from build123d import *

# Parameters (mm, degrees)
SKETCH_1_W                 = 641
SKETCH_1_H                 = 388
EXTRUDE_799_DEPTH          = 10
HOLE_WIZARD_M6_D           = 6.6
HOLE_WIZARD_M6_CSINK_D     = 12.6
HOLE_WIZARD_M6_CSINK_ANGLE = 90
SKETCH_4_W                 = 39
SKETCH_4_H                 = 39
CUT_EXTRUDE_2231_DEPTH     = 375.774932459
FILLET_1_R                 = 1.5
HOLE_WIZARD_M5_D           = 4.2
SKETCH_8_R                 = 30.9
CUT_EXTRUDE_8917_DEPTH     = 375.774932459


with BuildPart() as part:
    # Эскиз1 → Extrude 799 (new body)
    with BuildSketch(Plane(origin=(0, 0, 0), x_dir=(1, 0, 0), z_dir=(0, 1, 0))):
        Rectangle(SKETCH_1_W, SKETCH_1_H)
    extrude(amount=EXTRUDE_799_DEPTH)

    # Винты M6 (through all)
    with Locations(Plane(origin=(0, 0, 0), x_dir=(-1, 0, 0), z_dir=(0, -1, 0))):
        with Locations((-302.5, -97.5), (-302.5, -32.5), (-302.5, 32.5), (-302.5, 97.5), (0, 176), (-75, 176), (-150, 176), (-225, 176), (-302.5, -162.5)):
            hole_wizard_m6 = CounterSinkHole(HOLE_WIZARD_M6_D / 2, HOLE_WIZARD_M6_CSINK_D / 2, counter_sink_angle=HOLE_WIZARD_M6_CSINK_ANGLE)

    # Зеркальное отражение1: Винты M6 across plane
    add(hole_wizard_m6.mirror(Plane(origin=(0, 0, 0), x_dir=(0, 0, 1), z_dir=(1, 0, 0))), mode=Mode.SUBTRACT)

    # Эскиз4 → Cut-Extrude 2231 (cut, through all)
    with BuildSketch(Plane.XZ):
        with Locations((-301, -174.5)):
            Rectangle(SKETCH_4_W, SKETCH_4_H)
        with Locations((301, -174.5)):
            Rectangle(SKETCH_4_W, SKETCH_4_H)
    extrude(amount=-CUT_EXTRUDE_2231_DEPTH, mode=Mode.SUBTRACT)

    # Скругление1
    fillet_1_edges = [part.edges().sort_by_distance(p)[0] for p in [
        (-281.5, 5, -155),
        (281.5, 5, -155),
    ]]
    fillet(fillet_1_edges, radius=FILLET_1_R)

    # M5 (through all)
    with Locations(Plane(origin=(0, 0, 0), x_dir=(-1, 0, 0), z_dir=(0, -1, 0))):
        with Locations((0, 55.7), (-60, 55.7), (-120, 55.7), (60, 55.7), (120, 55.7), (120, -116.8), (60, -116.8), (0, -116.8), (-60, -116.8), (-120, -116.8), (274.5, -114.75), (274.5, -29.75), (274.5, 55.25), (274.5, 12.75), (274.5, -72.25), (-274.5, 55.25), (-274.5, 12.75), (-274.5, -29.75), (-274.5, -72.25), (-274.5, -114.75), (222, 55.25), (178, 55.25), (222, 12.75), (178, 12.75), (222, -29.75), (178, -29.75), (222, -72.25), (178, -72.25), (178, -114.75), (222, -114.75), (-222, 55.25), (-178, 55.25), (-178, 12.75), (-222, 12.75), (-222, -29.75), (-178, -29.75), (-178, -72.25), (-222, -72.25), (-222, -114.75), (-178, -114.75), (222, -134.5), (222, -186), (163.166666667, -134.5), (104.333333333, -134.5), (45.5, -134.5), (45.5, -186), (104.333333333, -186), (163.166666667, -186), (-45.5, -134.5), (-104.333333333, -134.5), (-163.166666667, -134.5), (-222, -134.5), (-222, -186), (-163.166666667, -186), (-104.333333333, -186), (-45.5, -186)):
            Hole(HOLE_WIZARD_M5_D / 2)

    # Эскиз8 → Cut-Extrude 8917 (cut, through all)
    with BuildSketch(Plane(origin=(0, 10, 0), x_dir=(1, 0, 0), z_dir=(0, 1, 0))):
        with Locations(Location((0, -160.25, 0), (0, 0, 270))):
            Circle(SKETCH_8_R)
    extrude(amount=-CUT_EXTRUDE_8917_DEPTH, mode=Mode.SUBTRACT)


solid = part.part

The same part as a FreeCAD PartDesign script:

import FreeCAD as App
import Part
import Sketcher
Q = App.Units.Quantity


def edges_at(feature, points):
    """Names of the edges that pass closest to the given points."""
    edges = feature.Shape.Edges
    near = lambda p: min(range(len(edges)), key=lambda i: edges[i].distToShape(Part.Vertex(*p))[0])
    return sorted({f"Edge{near(p) + 1}" for p in points})

doc = App.newDocument("Part")
body = doc.addObject("PartDesign::Body", "Body")

# Sketch on XZ plane
sketch1 = body.newObject("Sketcher::SketchObject", "Sketch")
sketch1.AttachmentSupport = (doc.getObject("XZ_Plane"), [""])
sketch1.MapMode = "FlatFace"
sketch1.addGeometry([
    Part.LineSegment(App.Vector(-320, -194, 0), App.Vector(-320, 194, 0)),
    Part.LineSegment(App.Vector(-320, 194, 0), App.Vector(320, 194, 0)),
    Part.LineSegment(App.Vector(320, 194, 0), App.Vector(320, -194, 0)),
    Part.LineSegment(App.Vector(320, -194, 0), App.Vector(-320, -194, 0)),
], False)
sketch1.addConstraint([
    Sketcher.Constraint("Coincident", 0, 2, 1, 1),
    Sketcher.Constraint("Coincident", 1, 2, 2, 1),
    Sketcher.Constraint("Coincident", 2, 2, 3, 1),
    Sketcher.Constraint("Coincident", 3, 2, 0, 1),
    Sketcher.Constraint("Vertical", 0),
    Sketcher.Constraint("Horizontal", 1),
    Sketcher.Constraint("Vertical", 2),
    Sketcher.Constraint("Horizontal", 3),
    Sketcher.Constraint("Symmetric", 0, 2, 2, 2, -1, 1),
    Sketcher.Constraint("DistanceX", 1, 1, 1, 2, Q("641 mm")),
    Sketcher.Constraint("DistanceY", 0, 1, 0, 2, Q("388 mm")),
])
pad1 = body.newObject("PartDesign::Pad", "Pad")
pad1.Profile = sketch1
pad1.Length = 10
pad1.Reversed = True

# Sketch on XZ plane
sketch2 = body.newObject("Sketcher::SketchObject", "Sketch001")
sketch2.AttachmentSupport = (doc.getObject("XZ_Plane"), [""])
sketch2.MapMode = "FlatFace"
sketch2.addGeometry([
    Part.Circle(App.Vector(302.5, 97.5, 0), App.Vector(0, 0, 1), 3.3),  # 0
    Part.Circle(App.Vector(302.5, 32.5, 0), App.Vector(0, 0, 1), 3.3),  # 1
    Part.Circle(App.Vector(302.5, -32.5, 0), App.Vector(0, 0, 1), 3.3),  # 2
    Part.Circle(App.Vector(302.5, -97.5, 0), App.Vector(0, 0, 1), 3.3),  # 3
    Part.Circle(App.Vector(0, -176, 0), App.Vector(0, 0, 1), 3.3),  # 4
    Part.Circle(App.Vector(75, -176, 0), App.Vector(0, 0, 1), 3.3),  # 5
    Part.Circle(App.Vector(150, -176, 0), App.Vector(0, 0, 1), 3.3),  # 6
    Part.Circle(App.Vector(225, -176, 0), App.Vector(0, 0, 1), 3.3),  # 7
    Part.Circle(App.Vector(302.5, 162.5, 0), App.Vector(0, 0, 1), 3.3),  # 8
], False)
sketch2.addConstraint([
    Sketcher.Constraint("Equal", 0, 1),
    Sketcher.Constraint("Equal", 1, 2),
    Sketcher.Constraint("Equal", 2, 3),
    Sketcher.Constraint("Equal", 3, 4),
    Sketcher.Constraint("Equal", 4, 5),
    Sketcher.Constraint("Equal", 5, 6),
    Sketcher.Constraint("Equal", 6, 7),
    Sketcher.Constraint("Equal", 7, 8),
    Sketcher.Constraint("Symmetric", 1, 3, 2, 3, -1),
    Sketcher.Constraint("Symmetric", 0, 3, 3, 3, -1),
    Sketcher.Constraint("PointOnObject", 4, 3, -2),
    Sketcher.Constraint("Horizontal", 4, 3, 5, 3),
    Sketcher.Constraint("Horizontal", 5, 3, 6, 3),
    Sketcher.Constraint("Horizontal", 6, 3, 7, 3),
    Sketcher.Constraint("Vertical", 0, 3, 1, 3),
    Sketcher.Constraint("Vertical", 3, 3, 8, 3),
    Sketcher.Constraint("Diameter", 0, Q("6.6 mm")),
    Sketcher.Constraint("DistanceY", 4, 3, -1, 1, Q("176 mm")),
    Sketcher.Constraint("DistanceX", -1, 1, 5, 3, Q("75 mm")),
    Sketcher.Constraint("DistanceX", -1, 1, 6, 3, Q("150 mm")),
    Sketcher.Constraint("DistanceX", -1, 1, 7, 3, Q("225 mm")),
    Sketcher.Constraint("DistanceY", 1, 3, 0, 3, Q("65 mm")),
    Sketcher.Constraint("DistanceY", 2, 3, 1, 3, Q("65 mm")),
    Sketcher.Constraint("DistanceY", 0, 3, 8, 3, Q("65 mm")),
    Sketcher.Constraint("DistanceX", -1, 1, 0, 3, Q("302.5 mm")),
])
doc.recompute()
hole = body.newObject("PartDesign::Hole", "Hole")
hole.Profile = sketch2
hole.ThreadType = "None"
hole.Diameter = 6.6
hole.DepthType = "ThroughAll"
hole.HoleCutType = "Countersink"
hole.HoleCutDiameter = 12.6
hole.HoleCutCountersinkAngle = 90
doc.recompute()

mirrored = body.newObject("PartDesign::Mirrored", "Mirrored")
mirrored.Originals = [hole]
mirrored.MirrorPlane = (doc.getObject("YZ_Plane"), [""])
body.Tip = mirrored

# Sketch on XZ plane
sketch3 = body.newObject("Sketcher::SketchObject", "Sketch002")
sketch3.AttachmentSupport = (doc.getObject("XZ_Plane"), [""])
sketch3.MapMode = "FlatFace"
sketch3.addGeometry([
    Part.LineSegment(App.Vector(-320, -155, 0), App.Vector(-320, -194, 0)),  # 0
    Part.LineSegment(App.Vector(-320, -194, 0), App.Vector(-282, -194, 0)),  # 1
    Part.LineSegment(App.Vector(-282, -194, 0), App.Vector(-282, -155, 0)),  # 2
    Part.LineSegment(App.Vector(-282, -155, 0), App.Vector(-320, -155, 0)),  # 3
    Part.LineSegment(App.Vector(282, -155, 0), App.Vector(282, -194, 0)),  # 4
    Part.LineSegment(App.Vector(282, -194, 0), App.Vector(320, -194, 0)),  # 5
    Part.LineSegment(App.Vector(320, -194, 0), App.Vector(320, -155, 0)),  # 6
    Part.LineSegment(App.Vector(320, -155, 0), App.Vector(282, -155, 0)),  # 7
], False)
sketch3.addConstraint([
    Sketcher.Constraint("Coincident", 0, 2, 1, 1),
    Sketcher.Constraint("Coincident", 1, 2, 2, 1),
    Sketcher.Constraint("Coincident", 2, 2, 3, 1),
    Sketcher.Constraint("Coincident", 3, 2, 0, 1),
    Sketcher.Constraint("Coincident", 4, 2, 5, 1),
    Sketcher.Constraint("Coincident", 5, 2, 6, 1),
    Sketcher.Constraint("Coincident", 6, 2, 7, 1),
    Sketcher.Constraint("Coincident", 7, 2, 4, 1),
    Sketcher.Constraint("Vertical", 0),
    Sketcher.Constraint("Horizontal", 1),
    Sketcher.Constraint("Vertical", 2),
    Sketcher.Constraint("Horizontal", 3),
    Sketcher.Constraint("Vertical", 4),
    Sketcher.Constraint("Horizontal", 5),
    Sketcher.Constraint("Vertical", 6),
    Sketcher.Constraint("Horizontal", 7),
    Sketcher.Constraint("Symmetric", 1, 2, 4, 2, -2),
    Sketcher.Constraint("Symmetric", 3, 2, 6, 2, -2),
    Sketcher.Constraint("Equal", 7, 0),
    Sketcher.Constraint("DistanceX", 1, 1, 1, 2, Q("39 mm")),
    Sketcher.Constraint("DistanceY", 0, 2, -1, 1, Q("194 mm")),
    Sketcher.Constraint("DistanceX", 1, 2, 4, 2, Q("563 mm")),
])
pocket1 = body.newObject("PartDesign::Pocket", "Pocket")
pocket1.Profile = sketch3
pocket1.Type = "ThroughAll"
doc.recompute()

fillet = body.newObject("PartDesign::Fillet", "Fillet")
fillet.Base = (pocket1, edges_at(pocket1, [(-281.5, 5, -155), (281.5, 5, -155)]))
fillet.Radius = 1.5

# Sketch on XZ plane
sketch4 = body.newObject("Sketcher::SketchObject", "Sketch003")
sketch4.AttachmentSupport = (doc.getObject("XZ_Plane"), [""])
sketch4.MapMode = "FlatFace"
sketch4.addGeometry([
    Part.Circle(App.Vector(0, -55.7, 0), App.Vector(0, 0, 1), 2.1),  # 0
    Part.Circle(App.Vector(60, -55.7, 0), App.Vector(0, 0, 1), 2.1),  # 1
    Part.Circle(App.Vector(120, -55.7, 0), App.Vector(0, 0, 1), 2.1),  # 2
    Part.Circle(App.Vector(-60, -55.7, 0), App.Vector(0, 0, 1), 2.1),  # 3
    Part.Circle(App.Vector(-120, -55.7, 0), App.Vector(0, 0, 1), 2.1),  # 4
    Part.Circle(App.Vector(-120, 116.8, 0), App.Vector(0, 0, 1), 2.1),  # 5
    Part.Circle(App.Vector(-60, 116.8, 0), App.Vector(0, 0, 1), 2.1),  # 6
    Part.Circle(App.Vector(0, 116.8, 0), App.Vector(0, 0, 1), 2.1),  # 7
    Part.Circle(App.Vector(60, 116.8, 0), App.Vector(0, 0, 1), 2.1),  # 8
    Part.Circle(App.Vector(120, 116.8, 0), App.Vector(0, 0, 1), 2.1),  # 9
    Part.Circle(App.Vector(-274.5, 114.8, 0), App.Vector(0, 0, 1), 2.1),  # 10
    Part.Circle(App.Vector(-274.5, 29.8, 0), App.Vector(0, 0, 1), 2.1),  # 11
    Part.Circle(App.Vector(-274.5, -55.2, 0), App.Vector(0, 0, 1), 2.1),  # 12
    Part.Circle(App.Vector(-274.5, -12.8, 0), App.Vector(0, 0, 1), 2.1),  # 13
    Part.Circle(App.Vector(-274.5, 72.2, 0), App.Vector(0, 0, 1), 2.1),  # 14
    Part.Circle(App.Vector(274.5, -55.2, 0), App.Vector(0, 0, 1), 2.1),  # 15
    Part.Circle(App.Vector(274.5, -12.8, 0), App.Vector(0, 0, 1), 2.1),  # 16
    Part.Circle(App.Vector(274.5, 29.8, 0), App.Vector(0, 0, 1), 2.1),  # 17
    Part.Circle(App.Vector(274.5, 72.2, 0), App.Vector(0, 0, 1), 2.1),  # 18
    Part.Circle(App.Vector(274.5, 114.8, 0), App.Vector(0, 0, 1), 2.1),  # 19
    Part.Circle(App.Vector(-222, -55.2, 0), App.Vector(0, 0, 1), 2.1),  # 20
    Part.Circle(App.Vector(-178, -55.2, 0), App.Vector(0, 0, 1), 2.1),  # 21
    Part.Circle(App.Vector(-222, -12.8, 0), App.Vector(0, 0, 1), 2.1),  # 22
    Part.Circle(App.Vector(-178, -12.8, 0), App.Vector(0, 0, 1), 2.1),  # 23
    Part.Circle(App.Vector(-222, 29.8, 0), App.Vector(0, 0, 1), 2.1),  # 24
    Part.Circle(App.Vector(-178, 29.8, 0), App.Vector(0, 0, 1), 2.1),  # 25
    Part.Circle(App.Vector(-222, 72.2, 0), App.Vector(0, 0, 1), 2.1),  # 26
    Part.Circle(App.Vector(-178, 72.2, 0), App.Vector(0, 0, 1), 2.1),  # 27
    Part.Circle(App.Vector(-178, 114.8, 0), App.Vector(0, 0, 1), 2.1),  # 28
    Part.Circle(App.Vector(-222, 114.8, 0), App.Vector(0, 0, 1), 2.1),  # 29
    Part.Circle(App.Vector(222, -55.2, 0), App.Vector(0, 0, 1), 2.1),  # 30
    Part.Circle(App.Vector(178, -55.2, 0), App.Vector(0, 0, 1), 2.1),  # 31
    Part.Circle(App.Vector(178, -12.8, 0), App.Vector(0, 0, 1), 2.1),  # 32
    Part.Circle(App.Vector(222, -12.8, 0), App.Vector(0, 0, 1), 2.1),  # 33
    Part.Circle(App.Vector(222, 29.8, 0), App.Vector(0, 0, 1), 2.1),  # 34
    Part.Circle(App.Vector(178, 29.8, 0), App.Vector(0, 0, 1), 2.1),  # 35
    Part.Circle(App.Vector(178, 72.2, 0), App.Vector(0, 0, 1), 2.1),  # 36
    Part.Circle(App.Vector(222, 72.2, 0), App.Vector(0, 0, 1), 2.1),  # 37
    Part.Circle(App.Vector(222, 114.8, 0), App.Vector(0, 0, 1), 2.1),  # 38
    Part.Circle(App.Vector(178, 114.8, 0), App.Vector(0, 0, 1), 2.1),  # 39
    Part.Circle(App.Vector(-222, 134.5, 0), App.Vector(0, 0, 1), 2.1),  # 40
    Part.Circle(App.Vector(-222, 186, 0), App.Vector(0, 0, 1), 2.1),  # 41
    Part.Circle(App.Vector(-163.2, 134.5, 0), App.Vector(0, 0, 1), 2.1),  # 42
    Part.Circle(App.Vector(-104.3, 134.5, 0), App.Vector(0, 0, 1), 2.1),  # 43
    Part.Circle(App.Vector(-45.5, 134.5, 0), App.Vector(0, 0, 1), 2.1),  # 44
    Part.Circle(App.Vector(-45.5, 186, 0), App.Vector(0, 0, 1), 2.1),  # 45
    Part.Circle(App.Vector(-104.3, 186, 0), App.Vector(0, 0, 1), 2.1),  # 46
    Part.Circle(App.Vector(-163.2, 186, 0), App.Vector(0, 0, 1), 2.1),  # 47
    Part.Circle(App.Vector(45.5, 134.5, 0), App.Vector(0, 0, 1), 2.1),  # 48
    Part.Circle(App.Vector(104.3, 134.5, 0), App.Vector(0, 0, 1), 2.1),  # 49
    Part.Circle(App.Vector(163.2, 134.5, 0), App.Vector(0, 0, 1), 2.1),  # 50
    Part.Circle(App.Vector(222, 134.5, 0), App.Vector(0, 0, 1), 2.1),  # 51
    Part.Circle(App.Vector(222, 186, 0), App.Vector(0, 0, 1), 2.1),  # 52
    Part.Circle(App.Vector(163.2, 186, 0), App.Vector(0, 0, 1), 2.1),  # 53
    Part.Circle(App.Vector(104.3, 186, 0), App.Vector(0, 0, 1), 2.1),  # 54
    Part.Circle(App.Vector(45.5, 186, 0), App.Vector(0, 0, 1), 2.1),  # 55
], False)
sketch4.addConstraint([
    Sketcher.Constraint("Equal", 0, 1),
    Sketcher.Constraint("Equal", 1, 2),
    Sketcher.Constraint("Equal", 2, 3),
    Sketcher.Constraint("Equal", 3, 4),
    Sketcher.Constraint("Equal", 4, 5),
    Sketcher.Constraint("Equal", 5, 6),
    Sketcher.Constraint("Equal", 6, 7),
    Sketcher.Constraint("Equal", 7, 8),
    Sketcher.Constraint("Equal", 8, 9),
    Sketcher.Constraint("Equal", 9, 10),
    Sketcher.Constraint("Equal", 10, 11),
    Sketcher.Constraint("Equal", 11, 12),
    Sketcher.Constraint("Equal", 12, 13),
    Sketcher.Constraint("Equal", 13, 14),
    Sketcher.Constraint("Equal", 14, 15),
    Sketcher.Constraint("Equal", 15, 16),
    Sketcher.Constraint("Equal", 16, 17),
    Sketcher.Constraint("Equal", 17, 18),
    Sketcher.Constraint("Equal", 18, 19),
    Sketcher.Constraint("Equal", 19, 20),
    Sketcher.Constraint("Equal", 20, 21),
    Sketcher.Constraint("Equal", 21, 22),
    Sketcher.Constraint("Equal", 22, 23),
    Sketcher.Constraint("Equal", 23, 24),
    Sketcher.Constraint("Equal", 24, 25),
    Sketcher.Constraint("Equal", 25, 26),
    Sketcher.Constraint("Equal", 26, 27),
    Sketcher.Constraint("Equal", 27, 28),
    Sketcher.Constraint("Equal", 28, 29),
    Sketcher.Constraint("Equal", 29, 30),
    Sketcher.Constraint("Equal", 30, 31),
    Sketcher.Constraint("Equal", 31, 32),
    Sketcher.Constraint("Equal", 32, 33),
    Sketcher.Constraint("Equal", 33, 34),
    Sketcher.Constraint("Equal", 34, 35),
    Sketcher.Constraint("Equal", 35, 36),
    Sketcher.Constraint("Equal", 36, 37),
    Sketcher.Constraint("Equal", 37, 38),
    Sketcher.Constraint("Equal", 38, 39),
    Sketcher.Constraint("Equal", 39, 40),
    Sketcher.Constraint("Equal", 40, 41),
    Sketcher.Constraint("Equal", 41, 42),
    Sketcher.Constraint("Equal", 42, 43),
    Sketcher.Constraint("Equal", 43, 44),
    Sketcher.Constraint("Equal", 44, 45),
    Sketcher.Constraint("Equal", 45, 46),
    Sketcher.Constraint("Equal", 46, 47),
    Sketcher.Constraint("Equal", 47, 48),
    Sketcher.Constraint("Equal", 48, 49),
    Sketcher.Constraint("Equal", 49, 50),
    Sketcher.Constraint("Equal", 50, 51),
    Sketcher.Constraint("Equal", 51, 52),
    Sketcher.Constraint("Equal", 52, 53),
    Sketcher.Constraint("Equal", 53, 54),
    Sketcher.Constraint("Equal", 54, 55),
    Sketcher.Constraint("Symmetric", 1, 3, 3, 3, -2),
    Sketcher.Constraint("Symmetric", 2, 3, 4, 3, -2),
    Sketcher.Constraint("Symmetric", 6, 3, 8, 3, -2),
    Sketcher.Constraint("Symmetric", 5, 3, 9, 3, -2),
    Sketcher.Constraint("Symmetric", 12, 3, 15, 3, -2),
    Sketcher.Constraint("Symmetric", 13, 3, 16, 3, -2),
    Sketcher.Constraint("Symmetric", 11, 3, 17, 3, -2),
    Sketcher.Constraint("Symmetric", 14, 3, 18, 3, -2),
    Sketcher.Constraint("Symmetric", 10, 3, 19, 3, -2),
    Sketcher.Constraint("Symmetric", 20, 3, 30, 3, -2),
    Sketcher.Constraint("Symmetric", 21, 3, 31, 3, -2),
    Sketcher.Constraint("Symmetric", 23, 3, 32, 3, -2),
    Sketcher.Constraint("Symmetric", 22, 3, 33, 3, -2),
    Sketcher.Constraint("Symmetric", 24, 3, 34, 3, -2),
    Sketcher.Constraint("Symmetric", 25, 3, 35, 3, -2),
    Sketcher.Constraint("Symmetric", 27, 3, 36, 3, -2),
    Sketcher.Constraint("Symmetric", 26, 3, 37, 3, -2),
    Sketcher.Constraint("Symmetric", 29, 3, 38, 3, -2),
    Sketcher.Constraint("Symmetric", 28, 3, 39, 3, -2),
    Sketcher.Constraint("Symmetric", 44, 3, 48, 3, -2),
    Sketcher.Constraint("Symmetric", 43, 3, 49, 3, -2),
    Sketcher.Constraint("Symmetric", 42, 3, 50, 3, -2),
    Sketcher.Constraint("Symmetric", 40, 3, 51, 3, -2),
    Sketcher.Constraint("Symmetric", 41, 3, 52, 3, -2),
    Sketcher.Constraint("Symmetric", 47, 3, 53, 3, -2),
    Sketcher.Constraint("Symmetric", 46, 3, 54, 3, -2),
    Sketcher.Constraint("Symmetric", 45, 3, 55, 3, -2),
    Sketcher.Constraint("PointOnObject", 0, 3, -2),
    Sketcher.Constraint("PointOnObject", 7, 3, -2),
    Sketcher.Constraint("Horizontal", 0, 3, 1, 3),
    Sketcher.Constraint("Horizontal", 1, 3, 2, 3),
    Sketcher.Constraint("Horizontal", 5, 3, 6, 3),
    Sketcher.Constraint("Horizontal", 6, 3, 7, 3),
    Sketcher.Constraint("Horizontal", 15, 3, 20, 3),
    Sketcher.Constraint("Horizontal", 20, 3, 21, 3),
    Sketcher.Constraint("Horizontal", 16, 3, 22, 3),
    Sketcher.Constraint("Horizontal", 22, 3, 23, 3),
    Sketcher.Constraint("Horizontal", 17, 3, 24, 3),
    Sketcher.Constraint("Horizontal", 24, 3, 25, 3),
    Sketcher.Constraint("Horizontal", 18, 3, 26, 3),
    Sketcher.Constraint("Horizontal", 26, 3, 27, 3),
    Sketcher.Constraint("Horizontal", 19, 3, 28, 3),
    Sketcher.Constraint("Horizontal", 28, 3, 29, 3),
    Sketcher.Constraint("Horizontal", 40, 3, 42, 3),
    Sketcher.Constraint("Horizontal", 42, 3, 43, 3),
    Sketcher.Constraint("Horizontal", 43, 3, 44, 3),
    Sketcher.Constraint("Horizontal", 41, 3, 45, 3),
    Sketcher.Constraint("Horizontal", 45, 3, 46, 3),
    Sketcher.Constraint("Horizontal", 46, 3, 47, 3),
    Sketcher.Constraint("Vertical", 4, 3, 5, 3),
    Sketcher.Constraint("Vertical", 3, 3, 6, 3),
    Sketcher.Constraint("Vertical", 10, 3, 11, 3),
    Sketcher.Constraint("Vertical", 11, 3, 12, 3),
    Sketcher.Constraint("Vertical", 12, 3, 13, 3),
    Sketcher.Constraint("Vertical", 13, 3, 14, 3),
    Sketcher.Constraint("Vertical", 20, 3, 22, 3),
    Sketcher.Constraint("Vertical", 21, 3, 23, 3),
    Sketcher.Constraint("Vertical", 22, 3, 24, 3),
    Sketcher.Constraint("Vertical", 23, 3, 25, 3),
    Sketcher.Constraint("Vertical", 24, 3, 26, 3),
    Sketcher.Constraint("Vertical", 25, 3, 27, 3),
    Sketcher.Constraint("Vertical", 27, 3, 28, 3),
    Sketcher.Constraint("Vertical", 26, 3, 29, 3),
    Sketcher.Constraint("Vertical", 29, 3, 40, 3),
    Sketcher.Constraint("Vertical", 40, 3, 41, 3),
    Sketcher.Constraint("Vertical", 44, 3, 45, 3),
    Sketcher.Constraint("Vertical", 43, 3, 46, 3),
    Sketcher.Constraint("Vertical", 42, 3, 47, 3),
    Sketcher.Constraint("Diameter", 0, Q("4.2 mm")),
    Sketcher.Constraint("DistanceX", -1, 1, 1, 3, Q("60 mm")),
    Sketcher.Constraint("DistanceX", -1, 1, 2, 3, Q("120 mm")),
    Sketcher.Constraint("DistanceX", 20, 3, -1, 1, Q("222 mm")),
    Sketcher.Constraint("DistanceX", 21, 3, -1, 1, Q("178 mm")),
    Sketcher.Constraint("DistanceY", -1, 1, 41, 3, Q("186 mm")),
    Sketcher.Constraint("DistanceY", 11, 3, 10, 3, Q("85 mm")),
    Sketcher.Constraint("DistanceY", 12, 3, 11, 3, Q("85 mm")),
    Sketcher.Constraint("DistanceY", 13, 3, 14, 3, Q("85 mm")),
    Sketcher.Constraint("DistanceX", 44, 3, 48, 3, Q("91 mm")),
    Sketcher.Constraint("DistanceY", 0, 3, -1, 1, Q("55.7 mm")),
    Sketcher.Constraint("DistanceY", -1, 1, 5, 3, Q("116.8 mm")),
    Sketcher.Constraint("DistanceX", 10, 3, -1, 1, Q("274.5 mm")),
    Sketcher.Constraint("DistanceY", -1, 1, 40, 3, Q("134.5 mm")),
    Sketcher.Constraint("DistanceY", 13, 3, 11, 3, Q("42.5 mm")),
    Sketcher.Constraint("DistanceY", -1, 1, 10, 3, Q("114.75 mm")),
    Sketcher.Constraint("DistanceX", 42, 3, -1, 1, Q("163.166667 mm")),
    Sketcher.Constraint("DistanceX", 43, 3, -1, 1, Q("104.333333 mm")),
])
doc.recompute()
hole2 = body.newObject("PartDesign::Hole", "Hole001")
hole2.Profile = sketch4
hole2.ThreadType = "None"
hole2.Diameter = 4.2
hole2.DepthType = "ThroughAll"

# Sketch on XZ plane
sketch5 = body.newObject("Sketcher::SketchObject", "Sketch004")
sketch5.AttachmentSupport = (doc.getObject("XZ_Plane"), [""])
sketch5.MapMode = "FlatFace"
sketch5.AttachmentOffset = App.Placement(App.Vector(0, 0, -10), App.Rotation())
sketch5.addGeometry(Part.Circle(App.Vector(0, 160, 0), App.Vector(0, 0, 1), 31), False)
sketch5.addConstraint([
    Sketcher.Constraint("PointOnObject", 0, 3, -2),
    Sketcher.Constraint("Diameter", 0, Q("61.8 mm")),
    Sketcher.Constraint("DistanceY", -1, 1, 0, 3, Q("160.25 mm")),
])
pocket2 = body.newObject("PartDesign::Pocket", "Pocket001")
pocket2.Profile = sketch5
pocket2.Type = "ThroughAll"
pocket2.Reversed = True

doc.recompute()
